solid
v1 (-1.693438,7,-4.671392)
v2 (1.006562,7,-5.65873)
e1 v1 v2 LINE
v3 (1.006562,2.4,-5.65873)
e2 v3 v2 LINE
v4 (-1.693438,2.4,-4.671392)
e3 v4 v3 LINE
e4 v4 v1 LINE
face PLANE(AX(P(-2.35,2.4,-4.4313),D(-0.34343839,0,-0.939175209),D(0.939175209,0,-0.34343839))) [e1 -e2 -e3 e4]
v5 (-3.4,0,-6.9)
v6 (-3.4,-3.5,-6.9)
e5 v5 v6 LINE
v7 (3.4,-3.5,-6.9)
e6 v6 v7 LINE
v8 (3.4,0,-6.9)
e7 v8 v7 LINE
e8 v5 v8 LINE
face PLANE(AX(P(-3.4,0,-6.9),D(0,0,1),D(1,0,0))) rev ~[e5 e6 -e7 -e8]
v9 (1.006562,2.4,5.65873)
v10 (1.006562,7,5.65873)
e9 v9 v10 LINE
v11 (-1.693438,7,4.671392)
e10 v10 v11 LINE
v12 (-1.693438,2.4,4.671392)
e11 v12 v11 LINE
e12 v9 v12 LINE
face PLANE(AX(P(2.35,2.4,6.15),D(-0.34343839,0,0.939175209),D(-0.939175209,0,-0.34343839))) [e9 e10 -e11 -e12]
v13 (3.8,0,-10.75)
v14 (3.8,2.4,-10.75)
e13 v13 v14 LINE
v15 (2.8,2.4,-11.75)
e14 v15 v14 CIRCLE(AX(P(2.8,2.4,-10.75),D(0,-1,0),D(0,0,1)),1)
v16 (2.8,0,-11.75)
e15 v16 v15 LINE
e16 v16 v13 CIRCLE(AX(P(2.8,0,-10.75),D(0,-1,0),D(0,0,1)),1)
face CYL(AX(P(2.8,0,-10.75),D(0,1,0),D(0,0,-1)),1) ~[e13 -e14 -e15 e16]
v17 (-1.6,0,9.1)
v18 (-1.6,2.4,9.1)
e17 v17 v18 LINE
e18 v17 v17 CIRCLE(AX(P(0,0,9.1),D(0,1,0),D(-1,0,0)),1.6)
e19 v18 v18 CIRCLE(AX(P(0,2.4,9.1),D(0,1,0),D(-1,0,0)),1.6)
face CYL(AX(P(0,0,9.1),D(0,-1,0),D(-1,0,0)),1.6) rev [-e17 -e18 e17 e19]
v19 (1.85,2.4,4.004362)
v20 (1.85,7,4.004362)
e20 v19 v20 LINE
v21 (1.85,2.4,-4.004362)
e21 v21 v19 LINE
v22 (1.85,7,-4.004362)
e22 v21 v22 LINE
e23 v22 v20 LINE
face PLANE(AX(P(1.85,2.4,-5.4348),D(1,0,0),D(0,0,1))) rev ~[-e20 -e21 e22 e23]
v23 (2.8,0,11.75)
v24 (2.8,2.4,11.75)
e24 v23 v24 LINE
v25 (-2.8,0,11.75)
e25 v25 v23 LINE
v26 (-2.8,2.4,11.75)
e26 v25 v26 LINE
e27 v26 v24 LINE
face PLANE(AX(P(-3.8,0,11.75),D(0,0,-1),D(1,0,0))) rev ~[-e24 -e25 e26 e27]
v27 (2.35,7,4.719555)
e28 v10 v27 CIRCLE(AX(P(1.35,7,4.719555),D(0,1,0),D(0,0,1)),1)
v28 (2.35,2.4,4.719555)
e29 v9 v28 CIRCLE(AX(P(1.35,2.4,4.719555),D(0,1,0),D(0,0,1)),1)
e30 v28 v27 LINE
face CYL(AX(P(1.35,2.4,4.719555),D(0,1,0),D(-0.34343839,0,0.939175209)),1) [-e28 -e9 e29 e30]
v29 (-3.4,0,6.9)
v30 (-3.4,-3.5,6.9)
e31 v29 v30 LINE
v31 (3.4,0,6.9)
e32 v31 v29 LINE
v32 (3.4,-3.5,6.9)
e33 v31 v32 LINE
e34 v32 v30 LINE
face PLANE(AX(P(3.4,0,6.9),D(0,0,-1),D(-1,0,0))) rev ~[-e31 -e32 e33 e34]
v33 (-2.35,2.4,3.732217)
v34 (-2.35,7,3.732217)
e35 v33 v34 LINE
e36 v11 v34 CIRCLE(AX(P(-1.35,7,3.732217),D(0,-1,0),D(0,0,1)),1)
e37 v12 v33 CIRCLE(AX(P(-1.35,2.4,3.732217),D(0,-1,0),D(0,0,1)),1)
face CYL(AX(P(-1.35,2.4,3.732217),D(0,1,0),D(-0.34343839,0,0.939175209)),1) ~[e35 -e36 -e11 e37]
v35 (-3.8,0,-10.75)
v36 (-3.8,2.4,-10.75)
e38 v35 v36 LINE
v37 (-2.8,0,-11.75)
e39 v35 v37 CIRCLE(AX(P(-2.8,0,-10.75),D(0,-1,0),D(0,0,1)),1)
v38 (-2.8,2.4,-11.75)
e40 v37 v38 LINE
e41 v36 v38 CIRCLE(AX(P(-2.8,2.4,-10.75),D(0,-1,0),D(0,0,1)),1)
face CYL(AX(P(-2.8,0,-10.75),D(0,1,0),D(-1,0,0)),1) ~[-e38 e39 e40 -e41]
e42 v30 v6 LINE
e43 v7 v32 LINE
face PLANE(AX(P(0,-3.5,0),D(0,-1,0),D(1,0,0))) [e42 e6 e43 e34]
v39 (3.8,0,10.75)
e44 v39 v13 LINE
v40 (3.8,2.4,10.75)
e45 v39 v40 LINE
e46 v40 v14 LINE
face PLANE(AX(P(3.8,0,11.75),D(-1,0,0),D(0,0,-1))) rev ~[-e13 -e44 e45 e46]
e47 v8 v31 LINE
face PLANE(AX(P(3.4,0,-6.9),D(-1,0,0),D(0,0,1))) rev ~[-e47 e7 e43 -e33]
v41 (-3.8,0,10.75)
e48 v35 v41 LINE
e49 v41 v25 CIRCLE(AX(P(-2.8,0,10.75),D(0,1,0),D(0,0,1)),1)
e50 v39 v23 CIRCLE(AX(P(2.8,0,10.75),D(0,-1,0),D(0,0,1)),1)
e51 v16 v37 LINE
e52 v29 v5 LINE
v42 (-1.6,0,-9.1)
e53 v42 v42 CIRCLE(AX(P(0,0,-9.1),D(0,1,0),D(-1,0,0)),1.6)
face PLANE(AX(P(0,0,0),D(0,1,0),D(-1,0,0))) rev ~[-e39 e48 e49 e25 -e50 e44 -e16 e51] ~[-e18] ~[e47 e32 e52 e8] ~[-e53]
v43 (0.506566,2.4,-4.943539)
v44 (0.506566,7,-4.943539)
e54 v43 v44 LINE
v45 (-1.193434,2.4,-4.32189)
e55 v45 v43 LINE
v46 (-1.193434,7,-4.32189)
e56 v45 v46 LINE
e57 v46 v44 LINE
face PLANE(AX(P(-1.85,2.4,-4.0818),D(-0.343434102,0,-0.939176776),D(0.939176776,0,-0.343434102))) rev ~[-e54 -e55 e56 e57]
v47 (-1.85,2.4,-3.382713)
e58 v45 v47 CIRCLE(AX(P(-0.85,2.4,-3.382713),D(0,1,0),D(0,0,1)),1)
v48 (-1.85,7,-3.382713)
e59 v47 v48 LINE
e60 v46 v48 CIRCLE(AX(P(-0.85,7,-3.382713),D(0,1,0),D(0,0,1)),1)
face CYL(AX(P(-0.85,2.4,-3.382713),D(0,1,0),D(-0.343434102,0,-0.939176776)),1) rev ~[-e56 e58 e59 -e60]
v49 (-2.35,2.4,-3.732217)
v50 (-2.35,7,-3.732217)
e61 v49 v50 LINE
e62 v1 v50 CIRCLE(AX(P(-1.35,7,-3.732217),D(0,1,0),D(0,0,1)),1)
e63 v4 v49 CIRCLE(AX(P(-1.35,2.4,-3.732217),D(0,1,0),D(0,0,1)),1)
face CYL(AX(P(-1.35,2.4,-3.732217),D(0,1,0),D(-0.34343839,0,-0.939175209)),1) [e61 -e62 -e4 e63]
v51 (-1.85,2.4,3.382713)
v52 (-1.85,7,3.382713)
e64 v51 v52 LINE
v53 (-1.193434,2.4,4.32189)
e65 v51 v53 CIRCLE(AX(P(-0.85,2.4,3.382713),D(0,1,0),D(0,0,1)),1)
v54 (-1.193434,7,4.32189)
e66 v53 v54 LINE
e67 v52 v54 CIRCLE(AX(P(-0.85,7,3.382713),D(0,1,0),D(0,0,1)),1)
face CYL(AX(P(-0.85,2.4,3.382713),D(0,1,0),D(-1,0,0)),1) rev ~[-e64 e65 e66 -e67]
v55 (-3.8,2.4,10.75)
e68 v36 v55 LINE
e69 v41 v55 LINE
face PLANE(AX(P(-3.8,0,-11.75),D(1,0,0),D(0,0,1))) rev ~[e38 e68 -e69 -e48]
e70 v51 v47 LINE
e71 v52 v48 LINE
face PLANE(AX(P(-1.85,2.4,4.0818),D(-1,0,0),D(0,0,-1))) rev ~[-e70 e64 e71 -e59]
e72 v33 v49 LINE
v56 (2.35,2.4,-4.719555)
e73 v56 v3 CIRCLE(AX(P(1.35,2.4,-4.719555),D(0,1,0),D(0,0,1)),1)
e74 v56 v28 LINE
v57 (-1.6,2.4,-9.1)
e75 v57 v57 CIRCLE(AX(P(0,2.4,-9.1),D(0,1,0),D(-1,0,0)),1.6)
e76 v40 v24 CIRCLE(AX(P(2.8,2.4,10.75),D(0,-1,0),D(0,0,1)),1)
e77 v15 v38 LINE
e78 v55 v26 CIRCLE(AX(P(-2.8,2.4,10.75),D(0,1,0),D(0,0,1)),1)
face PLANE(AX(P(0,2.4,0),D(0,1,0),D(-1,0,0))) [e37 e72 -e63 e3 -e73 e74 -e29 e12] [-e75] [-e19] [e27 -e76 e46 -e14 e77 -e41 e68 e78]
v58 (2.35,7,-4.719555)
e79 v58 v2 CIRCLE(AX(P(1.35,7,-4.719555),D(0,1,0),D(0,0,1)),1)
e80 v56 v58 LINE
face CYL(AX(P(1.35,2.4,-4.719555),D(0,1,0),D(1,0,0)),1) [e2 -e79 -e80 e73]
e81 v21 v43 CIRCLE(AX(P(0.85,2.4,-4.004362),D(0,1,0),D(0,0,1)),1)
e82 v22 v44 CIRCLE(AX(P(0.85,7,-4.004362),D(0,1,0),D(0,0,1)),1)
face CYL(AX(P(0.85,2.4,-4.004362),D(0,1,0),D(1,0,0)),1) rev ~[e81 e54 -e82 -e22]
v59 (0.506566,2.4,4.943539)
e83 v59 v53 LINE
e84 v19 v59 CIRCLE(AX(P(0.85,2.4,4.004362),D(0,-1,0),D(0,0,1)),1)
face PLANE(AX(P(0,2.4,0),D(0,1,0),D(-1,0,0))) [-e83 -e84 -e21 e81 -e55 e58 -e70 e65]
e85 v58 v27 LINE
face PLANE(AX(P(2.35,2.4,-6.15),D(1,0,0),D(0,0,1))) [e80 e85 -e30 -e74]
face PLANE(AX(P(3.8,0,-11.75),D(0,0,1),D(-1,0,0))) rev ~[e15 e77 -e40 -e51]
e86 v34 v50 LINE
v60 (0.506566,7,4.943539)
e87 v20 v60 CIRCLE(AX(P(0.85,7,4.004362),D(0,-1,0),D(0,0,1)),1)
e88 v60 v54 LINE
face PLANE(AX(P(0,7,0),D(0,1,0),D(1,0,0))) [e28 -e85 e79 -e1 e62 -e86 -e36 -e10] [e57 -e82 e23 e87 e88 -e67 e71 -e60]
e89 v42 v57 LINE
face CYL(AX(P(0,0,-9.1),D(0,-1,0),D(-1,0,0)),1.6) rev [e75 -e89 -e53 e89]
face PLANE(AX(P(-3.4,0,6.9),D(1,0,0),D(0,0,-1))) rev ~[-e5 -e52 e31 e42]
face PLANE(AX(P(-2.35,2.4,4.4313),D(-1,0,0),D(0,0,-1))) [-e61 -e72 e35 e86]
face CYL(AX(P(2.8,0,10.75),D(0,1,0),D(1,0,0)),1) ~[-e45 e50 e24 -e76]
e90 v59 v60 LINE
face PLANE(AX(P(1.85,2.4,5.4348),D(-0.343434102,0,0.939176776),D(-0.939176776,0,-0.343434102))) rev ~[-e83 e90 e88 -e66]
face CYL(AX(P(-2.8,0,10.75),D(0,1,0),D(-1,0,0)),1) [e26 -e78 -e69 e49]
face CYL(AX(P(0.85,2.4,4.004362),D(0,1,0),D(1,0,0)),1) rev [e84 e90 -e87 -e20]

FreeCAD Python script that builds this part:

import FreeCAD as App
import Part
import Sketcher

V = App.Vector


def edges_at(feature, points):
    """Names of the edges that pass closest to the given points."""
    edges = feature.Shape.Edges
    near = lambda p: min(range(len(edges)), key=lambda i: edges[i].distToShape(Part.Vertex(*p))[0])
    return sorted({f"Edge{near(p) + 1}" for p in points})

doc = App.newDocument("Part")
body = doc.addObject("PartDesign::Body", "Body")

# Sketch on XZ plane
sketch1 = doc.addObject("Sketcher::SketchObject", "Sketch")
body.addObject(sketch1)
sketch1.AttachmentSupport = (doc.XZ_Plane, [""])
sketch1.MapMode = "FlatFace"
sketch1.addGeometry(Part.LineSegment(V(-3.8, -11.75, 0), V(-3.8, 11.75, 0)), False)
sketch1.addGeometry(Part.LineSegment(V(-3.8, 11.75, 0), V(3.8, 11.75, 0)), False)
sketch1.addGeometry(Part.LineSegment(V(3.8, 11.75, 0), V(3.8, -11.75, 0)), False)
sketch1.addGeometry(Part.LineSegment(V(3.8, -11.75, 0), V(-3.8, -11.75, 0)), False)
sketch1.addGeometry(Part.Circle(V(0, -9.1, 0), V(0, 0, 1), 1.6), False)
sketch1.addGeometry(Part.Circle(V(0, 9.1, 0), V(0, 0, 1), 1.6), False)
sketch1.addConstraint(Sketcher.Constraint("Coincident", 0, 2, 1, 1))
sketch1.addConstraint(Sketcher.Constraint("Coincident", 1, 2, 2, 1))
sketch1.addConstraint(Sketcher.Constraint("Coincident", 2, 2, 3, 1))
sketch1.addConstraint(Sketcher.Constraint("Coincident", 3, 2, 0, 1))
sketch1.addConstraint(Sketcher.Constraint("Vertical", 0))
sketch1.addConstraint(Sketcher.Constraint("Horizontal", 1))
sketch1.addConstraint(Sketcher.Constraint("Vertical", 2))
sketch1.addConstraint(Sketcher.Constraint("Horizontal", 3))
sketch1.addConstraint(Sketcher.Constraint("Equal", 4, 5))
sketch1.addConstraint(Sketcher.Constraint("Symmetric", 4, 3, 5, 3, -1, 1))
sketch1.addConstraint(Sketcher.Constraint("Symmetric", 0, 2, 2, 2, -1, 1))
sketch1.addConstraint(Sketcher.Constraint("PointOnObject", 4, 3, -2))
sketch1.addConstraint(Sketcher.Constraint("Diameter", 4, 3.2))
sketch1.addConstraint(Sketcher.Constraint("DistanceX", 1, 1, 1, 2, 7.6))
sketch1.addConstraint(Sketcher.Constraint("DistanceY", 0, 1, 0, 2, 23.5))
sketch1.addConstraint(Sketcher.Constraint("DistanceY", 4, 3, -1, 1, 9.1))
pad1 = doc.addObject("PartDesign::Pad", "Pad")
body.addObject(pad1)
pad1.Profile = sketch1
pad1.Length = 2.4
pad1.Reversed = True
doc.recompute()

fillet = doc.addObject("PartDesign::Fillet", "Fillet")
body.addObject(fillet)
fillet.Base = (pad1, edges_at(pad1, [
    (3.8, 1.2, 11.75),
    (-3.8, 1.2, 11.75),
    (3.8, 1.2, -11.75),
    (-3.8, 1.2, -11.75),
]))
fillet.Radius = 1

# Sketch on XZ plane
sketch2 = doc.addObject("Sketcher::SketchObject", "Sketch001")
body.addObject(sketch2)
sketch2.AttachmentSupport = (doc.XZ_Plane, [""])
sketch2.MapMode = "FlatFace"
sketch2.AttachmentOffset = App.Placement(V(0, 0, -2.4), App.Rotation())
sketch2.addGeometry(Part.LineSegment(V(-2.35, -4.4313, 0), V(-2.35, 4.4313, 0)), False)
sketch2.addGeometry(Part.LineSegment(V(-2.35, 4.4313, 0), V(2.35, 6.15, 0)), False)
sketch2.addGeometry(Part.LineSegment(V(2.35, 6.15, 0), V(2.35, -6.15, 0)), False)
sketch2.addGeometry(Part.LineSegment(V(2.35, -6.15, 0), V(-2.35, -4.4313, 0)), False)
sketch2.addGeometry(Part.LineSegment(V(1.85, -5.4348, 0), V(1.85, 5.4348, 0)), False)
sketch2.addGeometry(Part.LineSegment(V(1.85, 5.4348, 0), V(-1.85, 4.0818, 0)), False)
sketch2.addGeometry(Part.LineSegment(V(-1.85, 4.0818, 0), V(-1.85, -4.0818, 0)), False)
sketch2.addGeometry(Part.LineSegment(V(-1.85, -4.0818, 0), V(1.85, -5.4348, 0)), False)
sketch2.addConstraint(Sketcher.Constraint("Coincident", 0, 2, 1, 1))
sketch2.addConstraint(Sketcher.Constraint("Coincident", 1, 2, 2, 1))
sketch2.addConstraint(Sketcher.Constraint("Coincident", 2, 2, 3, 1))
sketch2.addConstraint(Sketcher.Constraint("Coincident", 3, 2, 0, 1))
sketch2.addConstraint(Sketcher.Constraint("Coincident", 4, 2, 5, 1))
sketch2.addConstraint(Sketcher.Constraint("Coincident", 5, 2, 6, 1))
sketch2.addConstraint(Sketcher.Constraint("Coincident", 6, 2, 7, 1))
sketch2.addConstraint(Sketcher.Constraint("Coincident", 7, 2, 4, 1))
sketch2.addConstraint(Sketcher.Constraint("Vertical", 0))
sketch2.addConstraint(Sketcher.Constraint("Vertical", 2))
sketch2.addConstraint(Sketcher.Constraint("Vertical", 4))
sketch2.addConstraint(Sketcher.Constraint("Vertical", 6))
sketch2.addConstraint(Sketcher.Constraint("Parallel", 1, 5))
sketch2.addConstraint(Sketcher.Constraint("Parallel", 3, 7))
sketch2.addConstraint(Sketcher.Constraint("Equal", 1, 3))
sketch2.addConstraint(Sketcher.Constraint("DistanceY", 2, 2, 2, 1, 12.3))
sketch2.addConstraint(Sketcher.Constraint("DistanceX", 0, 2, 1, 2, 4.7))
sketch2.addConstraint(Sketcher.Constraint("DistanceX", 4, 2, 1, 2, 0.5))
sketch2.addConstraint(Sketcher.Constraint("DistanceX", 0, 2, 5, 2, 0.5))
sketch2.addConstraint(Sketcher.Constraint("DistanceX", 0, 2, -1, 1, 2.35))
sketch2.addConstraint(Sketcher.Constraint("DistanceY", -1, 1, 1, 2, 6.15))
sketch2.addConstraint(Sketcher.Constraint("DistanceY", 0, 1, 0, 2, 8.8626))
sketch2.addConstraint(Sketcher.Constraint("DistanceY", 4, 1, 4, 2, 10.8696))
sketch2.addConstraint(Sketcher.Constraint("DistanceY", 3, 2, 4, 2, 9.866))
pad2 = doc.addObject("PartDesign::Pad", "Pad001")
body.addObject(pad2)
pad2.Profile = sketch2
pad2.Length = 4.6
pad2.Reversed = True
doc.recompute()

fillet2 = doc.addObject("PartDesign::Fillet", "Fillet001")
body.addObject(fillet2)
fillet2.Base = (pad2, edges_at(pad2, [
    (-2.35, 4.7, -4.431),
    (-2.35, 4.7, 4.431),
    (2.35, 4.7, 6.15),
    (2.35, 4.7, -6.15),
    (-1.85, 4.7, -4.082),
    (-1.85, 4.7, 4.082),
    (1.85, 4.7, -5.435),
    (1.85, 4.7, 5.435),
]))
fillet2.Radius = 1

# Sketch on XZ plane
sketch3 = doc.addObject("Sketcher::SketchObject", "Sketch002")
body.addObject(sketch3)
sketch3.AttachmentSupport = (doc.XZ_Plane, [""])
sketch3.MapMode = "FlatFace"
sketch3.addGeometry(Part.LineSegment(V(3.4, -6.9, 0), V(3.4, 6.9, 0)), False)
sketch3.addGeometry(Part.LineSegment(V(3.4, 6.9, 0), V(-3.4, 6.9, 0)), False)
sketch3.addGeometry(Part.LineSegment(V(-3.4, 6.9, 0), V(-3.4, -6.9, 0)), False)
sketch3.addGeometry(Part.LineSegment(V(-3.4, -6.9, 0), V(3.4, -6.9, 0)), False)
sketch3.addConstraint(Sketcher.Constraint("Coincident", 0, 2, 1, 1))
sketch3.addConstraint(Sketcher.Constraint("Coincident", 1, 2, 2, 1))
sketch3.addConstraint(Sketcher.Constraint("Coincident", 2, 2, 3, 1))
sketch3.addConstraint(Sketcher.Constraint("Coincident", 3, 2, 0, 1))
sketch3.addConstraint(Sketcher.Constraint("Vertical", 0))
sketch3.addConstraint(Sketcher.Constraint("Horizontal", 1))
sketch3.addConstraint(Sketcher.Constraint("Vertical", 2))
sketch3.addConstraint(Sketcher.Constraint("Horizontal", 3))
sketch3.addConstraint(Sketcher.Constraint("Symmetric", 0, 2, 2, 2, -1, 1))
sketch3.addConstraint(Sketcher.Constraint("DistanceX", 1, 2, 1, 1, 6.8))
sketch3.addConstraint(Sketcher.Constraint("DistanceY", 0, 1, 0, 2, 13.8))
pad3 = doc.addObject("PartDesign::Pad", "Pad002")
body.addObject(pad3)
pad3.Profile = sketch3
pad3.Length = 3.5

doc.recompute()
